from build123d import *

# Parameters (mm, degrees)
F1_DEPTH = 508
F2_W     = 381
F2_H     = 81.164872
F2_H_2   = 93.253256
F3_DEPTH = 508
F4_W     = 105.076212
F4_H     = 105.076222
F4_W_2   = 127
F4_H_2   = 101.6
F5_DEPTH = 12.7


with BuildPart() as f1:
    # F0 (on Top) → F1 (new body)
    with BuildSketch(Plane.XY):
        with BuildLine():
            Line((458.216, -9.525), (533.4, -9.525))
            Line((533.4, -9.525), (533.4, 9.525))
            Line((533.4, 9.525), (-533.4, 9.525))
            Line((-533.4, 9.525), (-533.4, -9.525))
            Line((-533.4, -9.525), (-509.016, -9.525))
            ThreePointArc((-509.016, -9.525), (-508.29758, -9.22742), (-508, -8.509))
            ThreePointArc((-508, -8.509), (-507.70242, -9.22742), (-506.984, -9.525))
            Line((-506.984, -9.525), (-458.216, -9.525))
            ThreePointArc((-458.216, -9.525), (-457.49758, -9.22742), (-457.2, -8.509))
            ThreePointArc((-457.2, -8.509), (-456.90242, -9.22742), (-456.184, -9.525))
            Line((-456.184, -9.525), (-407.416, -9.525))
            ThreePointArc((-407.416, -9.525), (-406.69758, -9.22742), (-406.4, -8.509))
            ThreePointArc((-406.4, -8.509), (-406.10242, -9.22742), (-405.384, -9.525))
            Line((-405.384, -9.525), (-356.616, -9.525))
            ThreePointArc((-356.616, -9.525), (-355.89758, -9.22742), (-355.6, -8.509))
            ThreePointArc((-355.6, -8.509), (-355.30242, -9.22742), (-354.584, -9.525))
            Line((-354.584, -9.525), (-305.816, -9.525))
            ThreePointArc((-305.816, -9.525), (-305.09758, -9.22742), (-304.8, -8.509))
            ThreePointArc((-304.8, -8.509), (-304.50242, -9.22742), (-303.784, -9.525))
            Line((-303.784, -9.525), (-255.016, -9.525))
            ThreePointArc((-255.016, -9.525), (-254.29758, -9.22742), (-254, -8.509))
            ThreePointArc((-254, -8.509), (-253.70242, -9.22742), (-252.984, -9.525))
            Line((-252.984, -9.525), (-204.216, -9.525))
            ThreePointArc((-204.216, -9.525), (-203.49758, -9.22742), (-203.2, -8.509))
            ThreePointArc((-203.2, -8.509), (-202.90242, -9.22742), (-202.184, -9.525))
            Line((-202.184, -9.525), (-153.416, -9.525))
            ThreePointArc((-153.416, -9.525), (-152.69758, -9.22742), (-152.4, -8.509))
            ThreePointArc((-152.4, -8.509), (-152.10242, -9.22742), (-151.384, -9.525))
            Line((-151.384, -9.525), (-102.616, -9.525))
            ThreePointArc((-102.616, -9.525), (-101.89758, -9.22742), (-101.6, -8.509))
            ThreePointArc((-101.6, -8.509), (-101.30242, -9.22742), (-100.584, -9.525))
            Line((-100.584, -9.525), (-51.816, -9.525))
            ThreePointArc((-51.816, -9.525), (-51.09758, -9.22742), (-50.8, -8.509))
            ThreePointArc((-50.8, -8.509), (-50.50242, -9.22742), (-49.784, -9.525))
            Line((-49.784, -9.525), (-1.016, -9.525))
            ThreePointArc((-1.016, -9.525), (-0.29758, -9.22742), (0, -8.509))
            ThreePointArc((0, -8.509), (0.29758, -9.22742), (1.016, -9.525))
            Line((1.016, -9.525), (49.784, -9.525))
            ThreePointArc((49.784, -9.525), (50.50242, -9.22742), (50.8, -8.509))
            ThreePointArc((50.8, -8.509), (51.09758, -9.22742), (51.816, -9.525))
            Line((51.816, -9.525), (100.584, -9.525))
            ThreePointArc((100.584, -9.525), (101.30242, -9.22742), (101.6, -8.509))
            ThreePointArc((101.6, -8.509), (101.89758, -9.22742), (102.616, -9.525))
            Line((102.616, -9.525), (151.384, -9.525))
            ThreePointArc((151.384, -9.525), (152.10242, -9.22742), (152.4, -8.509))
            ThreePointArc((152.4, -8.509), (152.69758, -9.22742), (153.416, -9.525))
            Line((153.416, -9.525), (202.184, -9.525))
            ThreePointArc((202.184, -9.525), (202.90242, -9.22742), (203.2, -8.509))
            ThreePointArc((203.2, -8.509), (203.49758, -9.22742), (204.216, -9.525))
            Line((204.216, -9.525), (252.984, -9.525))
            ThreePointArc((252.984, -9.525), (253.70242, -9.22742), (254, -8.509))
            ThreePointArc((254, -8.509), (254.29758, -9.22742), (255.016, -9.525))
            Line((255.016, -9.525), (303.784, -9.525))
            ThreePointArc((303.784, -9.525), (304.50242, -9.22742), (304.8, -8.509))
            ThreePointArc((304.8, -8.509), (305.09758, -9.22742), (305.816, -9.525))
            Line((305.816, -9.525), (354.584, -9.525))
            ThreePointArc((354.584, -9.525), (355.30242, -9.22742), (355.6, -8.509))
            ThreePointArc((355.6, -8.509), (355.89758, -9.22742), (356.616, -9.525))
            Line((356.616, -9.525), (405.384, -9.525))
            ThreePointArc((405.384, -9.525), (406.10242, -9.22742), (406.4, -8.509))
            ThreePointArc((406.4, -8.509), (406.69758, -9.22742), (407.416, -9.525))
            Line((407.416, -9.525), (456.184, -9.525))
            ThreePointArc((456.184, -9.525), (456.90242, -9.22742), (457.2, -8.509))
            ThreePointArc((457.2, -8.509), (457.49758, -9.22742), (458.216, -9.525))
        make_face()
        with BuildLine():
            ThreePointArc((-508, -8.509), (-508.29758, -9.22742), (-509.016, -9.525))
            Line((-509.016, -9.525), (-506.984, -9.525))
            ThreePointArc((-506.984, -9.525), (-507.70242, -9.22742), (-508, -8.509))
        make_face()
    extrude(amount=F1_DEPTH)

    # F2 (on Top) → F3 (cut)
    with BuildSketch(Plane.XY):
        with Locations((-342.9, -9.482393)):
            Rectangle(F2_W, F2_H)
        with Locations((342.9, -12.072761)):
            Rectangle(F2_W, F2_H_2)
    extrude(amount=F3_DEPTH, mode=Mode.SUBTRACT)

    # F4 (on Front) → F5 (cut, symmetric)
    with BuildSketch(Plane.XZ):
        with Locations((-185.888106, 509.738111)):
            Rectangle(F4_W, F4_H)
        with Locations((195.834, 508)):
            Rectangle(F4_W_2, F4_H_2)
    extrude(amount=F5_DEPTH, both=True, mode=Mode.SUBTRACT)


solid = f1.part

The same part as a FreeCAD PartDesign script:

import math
import FreeCAD as App
import Part
import Sketcher

V = App.Vector
Q = App.Units.Quantity


def add_polygon(sketch, points):
    """Adds a closed chain of lines whose ends are joined by coincident constraints."""
    first, n = sketch.GeometryCount, len(points)
    for a, b in zip(points, points[1:] + points[:1]):
        sketch.addGeometry(Part.LineSegment(App.Vector(*a, 0), App.Vector(*b, 0)), False)
    for i in range(n):
        sketch.addConstraint(Sketcher.Constraint("Coincident", first + i, 2, first + (i + 1) % n, 1))

doc = App.newDocument("Part")
body = doc.addObject("PartDesign::Body", "Body")

sketch1 = body.newObject("Sketcher::SketchObject", "Sketch")
sketch1.AttachmentSupport = (doc.getObject("XY_Plane"), [""])
sketch1.MapMode = "FlatFace"
sketch1.addGeometry([
    Part.LineSegment(V(458.216, -9.525, 0), V(533.4, -9.525, 0)),
    Part.LineSegment(V(533.4, -9.525, 0), V(533.4, 9.525, 0)),
    Part.LineSegment(V(533.4, 9.525, 0), V(-533.4, 9.525, 0)),
    Part.LineSegment(V(-533.4, 9.525, 0), V(-533.4, -9.525, 0)),
    Part.LineSegment(V(-533.4, -9.525, 0), V(-458.216, -9.525, 0)),
    Part.ArcOfCircle(Part.Circle(V(-458.216002, -8.508998, 0), V(0, 0, 1), 1.016002), math.radians(-89.999906), math.radians(-0.000094)),
    Part.ArcOfCircle(Part.Circle(V(-456.183998, -8.508998, 0), V(0, 0, 1), 1.016002), math.radians(-179.999906), math.radians(-90.000094)),
    Part.LineSegment(V(-456.184, -9.525, 0), V(-407.416, -9.525, 0)),
    Part.ArcOfCircle(Part.Circle(V(-407.416002, -8.508998, 0), V(0, 0, 1), 1.016002), math.radians(-89.999906), math.radians(-0.000094)),
    Part.ArcOfCircle(Part.Circle(V(-405.383998, -8.508998, 0), V(0, 0, 1), 1.016002), math.radians(-179.999906), math.radians(-90.000094)),
    Part.LineSegment(V(-405.384, -9.525, 0), V(-356.616, -9.525, 0)),
    Part.ArcOfCircle(Part.Circle(V(-356.616002, -8.508998, 0), V(0, 0, 1), 1.016002), math.radians(-89.999906), math.radians(-0.000094)),
    Part.ArcOfCircle(Part.Circle(V(-354.583998, -8.508998, 0), V(0, 0, 1), 1.016002), math.radians(-179.999906), math.radians(-90.000094)),
    Part.LineSegment(V(-354.584, -9.525, 0), V(-305.816, -9.525, 0)),
    Part.ArcOfCircle(Part.Circle(V(-305.816002, -8.508998, 0), V(0, 0, 1), 1.016002), math.radians(-89.999906), math.radians(-0.000094)),
    Part.ArcOfCircle(Part.Circle(V(-303.783998, -8.508998, 0), V(0, 0, 1), 1.016002), math.radians(-179.999906), math.radians(-90.000094)),
    Part.LineSegment(V(-303.784, -9.525, 0), V(-255.016, -9.525, 0)),
    Part.ArcOfCircle(Part.Circle(V(-255.016002, -8.508998, 0), V(0, 0, 1), 1.016002), math.radians(-89.999906), math.radians(-0.000094)),
    Part.ArcOfCircle(Part.Circle(V(-252.983998, -8.508998, 0), V(0, 0, 1), 1.016002), math.radians(-179.999906), math.radians(-90.000094)),
    Part.LineSegment(V(-252.984, -9.525, 0), V(-204.216, -9.525, 0)),
    Part.ArcOfCircle(Part.Circle(V(-204.216002, -8.508998, 0), V(0, 0, 1), 1.016002), math.radians(-89.999906), math.radians(-0.000094)),
    Part.ArcOfCircle(Part.Circle(V(-202.183998, -8.508998, 0), V(0, 0, 1), 1.016002), math.radians(-179.999906), math.radians(-90.000094)),
    Part.LineSegment(V(-202.184, -9.525, 0), V(-153.416, -9.525, 0)),
    Part.ArcOfCircle(Part.Circle(V(-153.416002, -8.508998, 0), V(0, 0, 1), 1.016002), math.radians(-89.999906), math.radians(-0.000094)),
    Part.ArcOfCircle(Part.Circle(V(-151.383998, -8.508998, 0), V(0, 0, 1), 1.016002), math.radians(-179.999906), math.radians(-90.000094)),
    Part.LineSegment(V(-151.384, -9.525, 0), V(-102.616, -9.525, 0)),
    Part.ArcOfCircle(Part.Circle(V(-102.616002, -8.508998, 0), V(0, 0, 1), 1.016002), math.radians(-89.999906), math.radians(-0.000094)),
    Part.ArcOfCircle(Part.Circle(V(-100.583998, -8.508998, 0), V(0, 0, 1), 1.016002), math.radians(-179.999906), math.radians(-90.000094)),
    Part.LineSegment(V(-100.584, -9.525, 0), V(-51.816, -9.525, 0)),
    Part.ArcOfCircle(Part.Circle(V(-51.816002, -8.508998, 0), V(0, 0, 1), 1.016002), math.radians(-89.999906), math.radians(-0.000094)),
    Part.ArcOfCircle(Part.Circle(V(-49.783998, -8.508998, 0), V(0, 0, 1), 1.016002), math.radians(-179.999906), math.radians(-90.000094)),
    Part.LineSegment(V(-49.784, -9.525, 0), V(-1.016, -9.525, 0)),
    Part.ArcOfCircle(Part.Circle(V(-1.016002, -8.508998, 0), V(0, 0, 1), 1.016002), math.radians(-89.999906), math.radians(-0.000094)),
    Part.ArcOfCircle(Part.Circle(V(1.016002, -8.508998, 0), V(0, 0, 1), 1.016002), math.radians(-179.999906), math.radians(-90.000094)),
    Part.LineSegment(V(1.016, -9.525, 0), V(49.784, -9.525, 0)),
    Part.ArcOfCircle(Part.Circle(V(49.783998, -8.508998, 0), V(0, 0, 1), 1.016002), math.radians(-89.999906), math.radians(-0.000094)),
    Part.ArcOfCircle(Part.Circle(V(51.816002, -8.508998, 0), V(0, 0, 1), 1.016002), math.radians(-179.999906), math.radians(-90.000094)),
    Part.LineSegment(V(51.816, -9.525, 0), V(100.584, -9.525, 0)),
    Part.ArcOfCircle(Part.Circle(V(100.583998, -8.508998, 0), V(0, 0, 1), 1.016002), math.radians(-89.999906), math.radians(-0.000094)),
    Part.ArcOfCircle(Part.Circle(V(102.616002, -8.508998, 0), V(0, 0, 1), 1.016002), math.radians(-179.999906), math.radians(-90.000094)),
    Part.LineSegment(V(102.616, -9.525, 0), V(151.384, -9.525, 0)),
    Part.ArcOfCircle(Part.Circle(V(151.383998, -8.508998, 0), V(0, 0, 1), 1.016002), math.radians(-89.999906), math.radians(-0.000094)),
    Part.ArcOfCircle(Part.Circle(V(153.416002, -8.508998, 0), V(0, 0, 1), 1.016002), math.radians(-179.999906), math.radians(-90.000094)),
    Part.LineSegment(V(153.416, -9.525, 0), V(202.184, -9.525, 0)),
    Part.ArcOfCircle(Part.Circle(V(202.183998, -8.508998, 0), V(0, 0, 1), 1.016002), math.radians(-89.999906), math.radians(-0.000094)),
    Part.ArcOfCircle(Part.Circle(V(204.216002, -8.508998, 0), V(0, 0, 1), 1.016002), math.radians(-179.999906), math.radians(-90.000094)),
    Part.LineSegment(V(204.216, -9.525, 0), V(252.984, -9.525, 0)),
    Part.ArcOfCircle(Part.Circle(V(252.983998, -8.508998, 0), V(0, 0, 1), 1.016002), math.radians(-89.999906), math.radians(-0.000094)),
    Part.ArcOfCircle(Part.Circle(V(255.016002, -8.508998, 0), V(0, 0, 1), 1.016002), math.radians(-179.999906), math.radians(-90.000094)),
    Part.LineSegment(V(255.016, -9.525, 0), V(303.784, -9.525, 0)),
    Part.ArcOfCircle(Part.Circle(V(303.783998, -8.508998, 0), V(0, 0, 1), 1.016002), math.radians(-89.999906), math.radians(-0.000094)),
    Part.ArcOfCircle(Part.Circle(V(305.816002, -8.508998, 0), V(0, 0, 1), 1.016002), math.radians(-179.999906), math.radians(-90.000094)),
    Part.LineSegment(V(305.816, -9.525, 0), V(354.584, -9.525, 0)),
    Part.ArcOfCircle(Part.Circle(V(354.583998, -8.508998, 0), V(0, 0, 1), 1.016002), math.radians(-89.999906), math.radians(-0.000094)),
    Part.ArcOfCircle(Part.Circle(V(356.616002, -8.508998, 0), V(0, 0, 1), 1.016002), math.radians(-179.999906), math.radians(-90.000094)),
    Part.LineSegment(V(356.616, -9.525, 0), V(405.384, -9.525, 0)),
    Part.ArcOfCircle(Part.Circle(V(405.383998, -8.508998, 0), V(0, 0, 1), 1.016002), math.radians(-89.999906), math.radians(-0.000094)),
    Part.ArcOfCircle(Part.Circle(V(407.416002, -8.508998, 0), V(0, 0, 1), 1.016002), math.radians(-179.999906), math.radians(-90.000094)),
    Part.LineSegment(V(407.416, -9.525, 0), V(456.184, -9.525, 0)),
    Part.ArcOfCircle(Part.Circle(V(456.183998, -8.508998, 0), V(0, 0, 1), 1.016002), math.radians(-89.999906), math.radians(-0.000094)),
    Part.ArcOfCircle(Part.Circle(V(458.216002, -8.508998, 0), V(0, 0, 1), 1.016002), math.radians(-179.999906), math.radians(-90.000094)),
], False)
sketch1.addConstraint([
    Sketcher.Constraint("Coincident", 0, 2, 1, 1),
    Sketcher.Constraint("Coincident", 1, 2, 2, 1),
    Sketcher.Constraint("Coincident", 2, 2, 3, 1),
    Sketcher.Constraint("Coincident", 3, 2, 4, 1),
    Sketcher.Constraint("Tangent", 4, 2, 5, 1),
    Sketcher.Constraint("Coincident", 5, 2, 6, 1),
    Sketcher.Constraint("Tangent", 6, 2, 7, 1),
    Sketcher.Constraint("Tangent", 7, 2, 8, 1),
    Sketcher.Constraint("Coincident", 8, 2, 9, 1),
    Sketcher.Constraint("Tangent", 9, 2, 10, 1),
    Sketcher.Constraint("Tangent", 10, 2, 11, 1),
    Sketcher.Constraint("Coincident", 11, 2, 12, 1),
    Sketcher.Constraint("Tangent", 12, 2, 13, 1),
    Sketcher.Constraint("Tangent", 13, 2, 14, 1),
    Sketcher.Constraint("Coincident", 14, 2, 15, 1),
    Sketcher.Constraint("Tangent", 15, 2, 16, 1),
    Sketcher.Constraint("Tangent", 16, 2, 17, 1),
    Sketcher.Constraint("Coincident", 17, 2, 18, 1),
    Sketcher.Constraint("Tangent", 18, 2, 19, 1),
    Sketcher.Constraint("Tangent", 19, 2, 20, 1),
    Sketcher.Constraint("Coincident", 20, 2, 21, 1),
    Sketcher.Constraint("Tangent", 21, 2, 22, 1),
    Sketcher.Constraint("Tangent", 22, 2, 23, 1),
    Sketcher.Constraint("Coincident", 23, 2, 24, 1),
    Sketcher.Constraint("Tangent", 24, 2, 25, 1),
    Sketcher.Constraint("Tangent", 25, 2, 26, 1),
    Sketcher.Constraint("Coincident", 26, 2, 27, 1),
    Sketcher.Constraint("Tangent", 27, 2, 28, 1),
    Sketcher.Constraint("Tangent", 28, 2, 29, 1),
    Sketcher.Constraint("Coincident", 29, 2, 30, 1),
    Sketcher.Constraint("Tangent", 30, 2, 31, 1),
    Sketcher.Constraint("Tangent", 31, 2, 32, 1),
    Sketcher.Constraint("Coincident", 32, 2, 33, 1),
    Sketcher.Constraint("Tangent", 33, 2, 34, 1),
    Sketcher.Constraint("Tangent", 34, 2, 35, 1),
    Sketcher.Constraint("Coincident", 35, 2, 36, 1),
    Sketcher.Constraint("Tangent", 36, 2, 37, 1),
    Sketcher.Constraint("Tangent", 37, 2, 38, 1),
    Sketcher.Constraint("Coincident", 38, 2, 39, 1),
    Sketcher.Constraint("Tangent", 39, 2, 40, 1),
    Sketcher.Constraint("Tangent", 40, 2, 41, 1),
    Sketcher.Constraint("Coincident", 41, 2, 42, 1),
    Sketcher.Constraint("Tangent", 42, 2, 43, 1),
    Sketcher.Constraint("Tangent", 43, 2, 44, 1),
    Sketcher.Constraint("Coincident", 44, 2, 45, 1),
    Sketcher.Constraint("Tangent", 45, 2, 46, 1),
    Sketcher.Constraint("Tangent", 46, 2, 47, 1),
    Sketcher.Constraint("Coincident", 47, 2, 48, 1),
    Sketcher.Constraint("Tangent", 48, 2, 49, 1),
    Sketcher.Constraint("Tangent", 49, 2, 50, 1),
    Sketcher.Constraint("Coincident", 50, 2, 51, 1),
    Sketcher.Constraint("Tangent", 51, 2, 52, 1),
    Sketcher.Constraint("Tangent", 52, 2, 53, 1),
    Sketcher.Constraint("Coincident", 53, 2, 54, 1),
    Sketcher.Constraint("Tangent", 54, 2, 55, 1),
    Sketcher.Constraint("Tangent", 55, 2, 56, 1),
    Sketcher.Constraint("Coincident", 56, 2, 57, 1),
    Sketcher.Constraint("Tangent", 57, 2, 58, 1),
    Sketcher.Constraint("Tangent", 58, 2, 59, 1),
    Sketcher.Constraint("Coincident", 59, 2, 60, 1),
    Sketcher.Constraint("Tangent", 60, 2, 0, 1),
    Sketcher.Constraint("Horizontal", 0),
    Sketcher.Constraint("Vertical", 1),
    Sketcher.Constraint("Horizontal", 2),
    Sketcher.Constraint("Vertical", 3),
    Sketcher.Constraint("Horizontal", 4),
    Sketcher.Constraint("Horizontal", 7),
    Sketcher.Constraint("Horizontal", 10),
    Sketcher.Constraint("Horizontal", 13),
    Sketcher.Constraint("Horizontal", 16),
    Sketcher.Constraint("Horizontal", 19),
    Sketcher.Constraint("Horizontal", 22),
    Sketcher.Constraint("Horizontal", 25),
    Sketcher.Constraint("Horizontal", 28),
    Sketcher.Constraint("Horizontal", 31),
    Sketcher.Constraint("Horizontal", 34),
    Sketcher.Constraint("Horizontal", 37),
    Sketcher.Constraint("Horizontal", 40),
    Sketcher.Constraint("Horizontal", 43),
    Sketcher.Constraint("Horizontal", 46),
    Sketcher.Constraint("Horizontal", 49),
    Sketcher.Constraint("Horizontal", 52),
    Sketcher.Constraint("Horizontal", 55),
    Sketcher.Constraint("Horizontal", 58),
    Sketcher.Constraint("Equal", 5, 6),
    Sketcher.Constraint("Equal", 6, 8),
    Sketcher.Constraint("Equal", 8, 9),
    Sketcher.Constraint("Equal", 9, 11),
    Sketcher.Constraint("Equal", 11, 12),
    Sketcher.Constraint("Equal", 12, 14),
    Sketcher.Constraint("Equal", 14, 15),
    Sketcher.Constraint("Equal", 15, 17),
    Sketcher.Constraint("Equal", 17, 18),
    Sketcher.Constraint("Equal", 18, 20),
    Sketcher.Constraint("Equal", 20, 21),
    Sketcher.Constraint("Equal", 21, 23),
    Sketcher.Constraint("Equal", 23, 24),
    Sketcher.Constraint("Equal", 24, 26),
    Sketcher.Constraint("Equal", 26, 27),
    Sketcher.Constraint("Equal", 27, 29),
    Sketcher.Constraint("Equal", 29, 30),
    Sketcher.Constraint("Equal", 30, 32),
    Sketcher.Constraint("Equal", 32, 33),
    Sketcher.Constraint("Equal", 33, 35),
    Sketcher.Constraint("Equal", 35, 36),
    Sketcher.Constraint("Equal", 36, 38),
    Sketcher.Constraint("Equal", 38, 39),
    Sketcher.Constraint("Equal", 39, 41),
    Sketcher.Constraint("Equal", 41, 42),
    Sketcher.Constraint("Equal", 42, 44),
    Sketcher.Constraint("Equal", 44, 45),
    Sketcher.Constraint("Equal", 45, 47),
    Sketcher.Constraint("Equal", 47, 48),
    Sketcher.Constraint("Equal", 48, 50),
    Sketcher.Constraint("Equal", 50, 51),
    Sketcher.Constraint("Equal", 51, 53),
    Sketcher.Constraint("Equal", 53, 54),
    Sketcher.Constraint("Equal", 54, 56),
    Sketcher.Constraint("Equal", 56, 57),
    Sketcher.Constraint("Equal", 57, 59),
    Sketcher.Constraint("Equal", 59, 60),
    Sketcher.Constraint("Symmetric", 0, 2, 2, 2, -1, 1),
    Sketcher.Constraint("Symmetric", 32, 3, 33, 3, -2),
    Sketcher.Constraint("Symmetric", 29, 3, 36, 3, -2),
    Sketcher.Constraint("Symmetric", 26, 3, 39, 3, -2),
    Sketcher.Constraint("Symmetric", 23, 3, 42, 3, -2),
    Sketcher.Constraint("Symmetric", 20, 3, 45, 3, -2),
    Sketcher.Constraint("Symmetric", 17, 3, 48, 3, -2),
    Sketcher.Constraint("Symmetric", 14, 3, 51, 3, -2),
    Sketcher.Constraint("Symmetric", 11, 3, 54, 3, -2),
    Sketcher.Constraint("Symmetric", 8, 3, 57, 3, -2),
    Sketcher.Constraint("Symmetric", 5, 3, 60, 3, -2),
    Sketcher.Constraint("Horizontal", 5, 3, 6, 3),
    Sketcher.Constraint("Horizontal", 8, 3, 9, 3),
    Sketcher.Constraint("Horizontal", 11, 3, 12, 3),
    Sketcher.Constraint("Horizontal", 14, 3, 15, 3),
    Sketcher.Constraint("Horizontal", 17, 3, 18, 3),
    Sketcher.Constraint("Horizontal", 20, 3, 21, 3),
    Sketcher.Constraint("Horizontal", 23, 3, 24, 3),
    Sketcher.Constraint("Horizontal", 26, 3, 27, 3),
    Sketcher.Constraint("Horizontal", 29, 3, 30, 3),
    Sketcher.Constraint("Horizontal", 60, 3, 5, 2),
    Sketcher.Constraint("Horizontal", 5, 2, 8, 2),
    Sketcher.Constraint("Horizontal", 8, 2, 11, 2),
    Sketcher.Constraint("Horizontal", 11, 2, 14, 2),
    Sketcher.Constraint("Horizontal", 14, 2, 17, 2),
    Sketcher.Constraint("Horizontal", 17, 2, 20, 2),
    Sketcher.Constraint("Horizontal", 20, 2, 23, 2),
    Sketcher.Constraint("Horizontal", 23, 2, 26, 2),
    Sketcher.Constraint("Horizontal", 26, 2, 29, 2),
    Sketcher.Constraint("Horizontal", 29, 2, 32, 2),
    Sketcher.Constraint("Horizontal", 32, 2, 35, 2),
    Sketcher.Constraint("Horizontal", 35, 2, 38, 2),
    Sketcher.Constraint("Horizontal", 38, 2, 41, 2),
    Sketcher.Constraint("Horizontal", 41, 2, 44, 2),
    Sketcher.Constraint("Horizontal", 44, 2, 47, 2),
    Sketcher.Constraint("Horizontal", 47, 2, 50, 2),
    Sketcher.Constraint("Horizontal", 50, 2, 53, 2),
    Sketcher.Constraint("Horizontal", 53, 2, 56, 2),
    Sketcher.Constraint("Horizontal", 56, 2, 59, 2),
    Sketcher.Constraint("Equal", 7, 10),
    Sketcher.Constraint("Equal", 10, 13),
    Sketcher.Constraint("Equal", 13, 16),
    Sketcher.Constraint("Equal", 16, 19),
    Sketcher.Constraint("Equal", 19, 22),
    Sketcher.Constraint("Equal", 22, 25),
    Sketcher.Constraint("Equal", 25, 28),
    Sketcher.Constraint("Equal", 28, 31),
    Sketcher.Constraint("DistanceX", 2, 2, 2, 1, Q("42 in")),
    Sketcher.Constraint("Radius", 5, Q("0.0400001 in")),
    Sketcher.Constraint("DistanceX", 5, 2, -1, 1, Q("18 in")),
    Sketcher.Constraint("DistanceY", 1, 1, 1, 2, Q("0.75 in")),
])
pad1 = body.newObject("PartDesign::Pad", "Pad")
pad1.Profile = sketch1
pad1.Length = Q("20 in")

sketch2 = body.newObject("Sketcher::SketchObject", "Sketch001")
sketch2.AttachmentSupport = (doc.getObject("XY_Plane"), [""])
sketch2.MapMode = "FlatFace"
add_polygon(sketch2, [(-533.4, 31.100043), (-533.4, -50.064829), (-152.4, -50.064829), (-152.4, 31.100043)])
add_polygon(sketch2, [(152.4, 34.553867), (152.4, -58.699389), (533.4, -58.699389), (533.4, 34.553867)])
sketch2.addConstraint([
    Sketcher.Constraint("Vertical", 0),
    Sketcher.Constraint("Horizontal", 1),
    Sketcher.Constraint("Vertical", 2),
    Sketcher.Constraint("Horizontal", 3),
    Sketcher.Constraint("Vertical", 4),
    Sketcher.Constraint("Horizontal", 5),
    Sketcher.Constraint("Vertical", 6),
    Sketcher.Constraint("Horizontal", 7),
    Sketcher.Constraint("Equal", 3, 5),
    Sketcher.Constraint("DistanceX", 1, 1, 1, 2, Q("15 in")),
    Sketcher.Constraint("DistanceX", 0, 2, -1, 1, Q("21 in")),
    Sketcher.Constraint("DistanceX", -1, 1, 4, 2, Q("6 in")),
    Sketcher.Constraint("DistanceY", 0, 2, 0, 1, 81.164872),
    Sketcher.Constraint("DistanceY", 4, 2, 4, 1, 93.253256),
    Sketcher.Constraint("DistanceY", 0, 2, -1, 1, 50.064829),
    Sketcher.Constraint("DistanceY", 4, 2, -1, 1, 58.699389),
])
pocket1 = body.newObject("PartDesign::Pocket", "Pocket")
pocket1.Profile = sketch2
pocket1.Length = Q("20 in")
pocket1.Reversed = True

sketch3 = body.newObject("Sketcher::SketchObject", "Sketch002")
sketch3.AttachmentSupport = (doc.getObject("XZ_Plane"), [""])
sketch3.MapMode = "FlatFace"
add_polygon(sketch3, [(-238.426212, 562.276222), (-238.426212, 457.2), (-133.35, 457.2), (-133.35, 562.276222)])
add_polygon(sketch3, [(132.334, 558.8), (132.334, 457.2), (259.334, 457.2), (259.334, 558.8)])
sketch3.addConstraint([
    Sketcher.Constraint("Vertical", 0),
    Sketcher.Constraint("Horizontal", 1),
    Sketcher.Constraint("Vertical", 2),
    Sketcher.Constraint("Horizontal", 3),
    Sketcher.Constraint("Vertical", 4),
    Sketcher.Constraint("Horizontal", 5),
    Sketcher.Constraint("Vertical", 6),
    Sketcher.Constraint("Horizontal", 7),
    Sketcher.Constraint("Horizontal", 1, 2, 4, 2),
    Sketcher.Constraint("DistanceX", 5, 1, 5, 2, Q("5 in")),
    Sketcher.Constraint("DistanceY", 4, 2, 4, 1, Q("4 in")),
    Sketcher.Constraint("DistanceY", -1, 1, 0, 2, Q("18 in")),
    Sketcher.Constraint("DistanceX", 1, 2, -1, 1, Q("5.25 in")),
    Sketcher.Constraint("DistanceX", -1, 1, 4, 2, Q("5.21 in")),
    Sketcher.Constraint("DistanceX", 1, 1, 1, 2, 105.076212),
    Sketcher.Constraint("DistanceY", 0, 2, 0, 1, 105.076222),
])
pocket2 = body.newObject("PartDesign::Pocket", "Pocket001")
pocket2.Profile = sketch3
pocket2.Length = Q("1 in")
pocket2.Midplane = True

doc.recompute()
